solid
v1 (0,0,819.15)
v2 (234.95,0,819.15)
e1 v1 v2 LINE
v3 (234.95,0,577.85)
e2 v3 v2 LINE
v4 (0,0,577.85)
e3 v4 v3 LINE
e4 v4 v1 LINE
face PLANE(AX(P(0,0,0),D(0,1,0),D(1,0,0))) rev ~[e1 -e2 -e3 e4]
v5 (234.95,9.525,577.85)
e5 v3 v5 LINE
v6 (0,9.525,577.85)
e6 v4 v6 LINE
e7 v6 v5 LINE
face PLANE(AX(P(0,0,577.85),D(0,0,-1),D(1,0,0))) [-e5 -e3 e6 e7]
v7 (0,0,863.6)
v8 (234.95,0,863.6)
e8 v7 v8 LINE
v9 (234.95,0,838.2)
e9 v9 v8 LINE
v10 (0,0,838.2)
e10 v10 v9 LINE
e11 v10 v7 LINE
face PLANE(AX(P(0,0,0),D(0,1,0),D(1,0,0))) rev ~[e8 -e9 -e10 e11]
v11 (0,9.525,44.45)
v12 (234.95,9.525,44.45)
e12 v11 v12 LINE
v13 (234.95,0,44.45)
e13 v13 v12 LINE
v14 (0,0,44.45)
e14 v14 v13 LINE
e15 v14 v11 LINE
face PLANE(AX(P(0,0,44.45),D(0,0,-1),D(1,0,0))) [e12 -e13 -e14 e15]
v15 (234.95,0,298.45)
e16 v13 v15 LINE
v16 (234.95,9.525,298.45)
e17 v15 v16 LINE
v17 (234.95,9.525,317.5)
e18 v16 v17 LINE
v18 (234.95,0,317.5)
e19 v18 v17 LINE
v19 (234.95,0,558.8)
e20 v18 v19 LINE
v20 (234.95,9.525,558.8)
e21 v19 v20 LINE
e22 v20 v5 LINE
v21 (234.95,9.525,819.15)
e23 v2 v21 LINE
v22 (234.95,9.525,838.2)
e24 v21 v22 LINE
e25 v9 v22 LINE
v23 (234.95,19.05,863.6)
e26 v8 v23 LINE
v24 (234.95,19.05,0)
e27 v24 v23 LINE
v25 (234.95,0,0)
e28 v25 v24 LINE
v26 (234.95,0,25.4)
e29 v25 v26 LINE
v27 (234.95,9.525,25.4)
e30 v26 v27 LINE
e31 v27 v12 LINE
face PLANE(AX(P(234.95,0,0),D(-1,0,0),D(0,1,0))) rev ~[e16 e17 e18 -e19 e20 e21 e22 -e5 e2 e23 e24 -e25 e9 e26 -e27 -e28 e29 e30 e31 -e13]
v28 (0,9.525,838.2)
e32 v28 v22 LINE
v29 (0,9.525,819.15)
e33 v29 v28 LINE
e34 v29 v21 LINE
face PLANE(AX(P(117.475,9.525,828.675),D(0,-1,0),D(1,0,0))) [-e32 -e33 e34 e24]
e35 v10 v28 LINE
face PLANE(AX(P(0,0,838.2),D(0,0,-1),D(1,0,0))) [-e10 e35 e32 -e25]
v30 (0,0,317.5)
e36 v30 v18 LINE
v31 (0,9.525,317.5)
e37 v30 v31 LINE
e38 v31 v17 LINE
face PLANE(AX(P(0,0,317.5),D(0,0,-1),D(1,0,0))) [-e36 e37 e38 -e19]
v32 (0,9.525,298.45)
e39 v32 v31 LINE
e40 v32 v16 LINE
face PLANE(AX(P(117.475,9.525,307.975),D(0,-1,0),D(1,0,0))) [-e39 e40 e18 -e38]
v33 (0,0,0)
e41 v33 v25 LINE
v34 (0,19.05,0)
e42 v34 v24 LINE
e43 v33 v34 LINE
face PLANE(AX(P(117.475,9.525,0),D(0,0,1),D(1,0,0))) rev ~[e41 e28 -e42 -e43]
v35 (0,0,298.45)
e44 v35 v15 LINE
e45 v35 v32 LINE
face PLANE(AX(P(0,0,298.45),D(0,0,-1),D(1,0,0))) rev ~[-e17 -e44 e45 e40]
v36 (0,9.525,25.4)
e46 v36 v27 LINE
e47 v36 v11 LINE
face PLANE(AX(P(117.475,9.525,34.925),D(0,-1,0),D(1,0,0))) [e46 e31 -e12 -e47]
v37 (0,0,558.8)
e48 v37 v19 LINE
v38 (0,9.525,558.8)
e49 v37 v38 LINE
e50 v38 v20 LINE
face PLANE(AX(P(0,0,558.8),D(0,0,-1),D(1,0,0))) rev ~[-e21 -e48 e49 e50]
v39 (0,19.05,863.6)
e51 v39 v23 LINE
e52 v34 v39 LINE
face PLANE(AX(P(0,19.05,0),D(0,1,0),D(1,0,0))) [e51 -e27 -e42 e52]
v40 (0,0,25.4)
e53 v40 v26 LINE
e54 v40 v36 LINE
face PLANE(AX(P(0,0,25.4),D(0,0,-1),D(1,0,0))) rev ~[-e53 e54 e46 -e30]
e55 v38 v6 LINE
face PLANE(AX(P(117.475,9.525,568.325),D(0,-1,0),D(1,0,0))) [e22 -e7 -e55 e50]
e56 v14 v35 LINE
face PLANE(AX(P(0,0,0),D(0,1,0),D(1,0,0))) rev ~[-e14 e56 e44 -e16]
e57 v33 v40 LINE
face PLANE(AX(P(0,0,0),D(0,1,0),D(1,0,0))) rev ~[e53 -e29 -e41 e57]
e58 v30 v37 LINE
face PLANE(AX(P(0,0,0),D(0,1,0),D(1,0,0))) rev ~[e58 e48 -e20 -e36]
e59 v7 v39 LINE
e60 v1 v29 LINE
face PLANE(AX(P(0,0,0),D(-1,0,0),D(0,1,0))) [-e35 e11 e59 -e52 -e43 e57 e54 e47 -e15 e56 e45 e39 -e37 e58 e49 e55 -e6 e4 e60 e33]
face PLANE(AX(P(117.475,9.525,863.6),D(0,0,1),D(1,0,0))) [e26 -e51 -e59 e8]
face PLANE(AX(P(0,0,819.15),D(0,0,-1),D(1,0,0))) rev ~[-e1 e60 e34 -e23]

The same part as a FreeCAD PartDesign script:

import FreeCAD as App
import Part
import Sketcher
from FreeCAD import Vector
Q = App.Units.Quantity

doc = App.newDocument("Part")
body = doc.addObject("PartDesign::Body", "Body")

# Sketch on XY plane
sketch1 = body.newObject("Sketcher::SketchObject", "Sketch")
sketch1.AttachmentSupport = (doc.getObject("XY_Plane"), [""])
sketch1.MapMode = "FlatFace"
sketch1.addGeometry([
    Part.LineSegment(Vector(0, 19, 0), Vector(0, 0, 0)),
    Part.LineSegment(Vector(0, 0, 0), Vector(235, 0, 0)),
    Part.LineSegment(Vector(235, 0, 0), Vector(235, 19, 0)),
    Part.LineSegment(Vector(235, 19, 0), Vector(0, 19, 0)),
], False)
sketch1.addConstraint([
    Sketcher.Constraint("Coincident", 0, 2, 1, 1),
    Sketcher.Constraint("Coincident", 1, 2, 2, 1),
    Sketcher.Constraint("Coincident", 2, 2, 3, 1),
    Sketcher.Constraint("Coincident", 3, 2, 0, 1),
    Sketcher.Constraint("Vertical", 0),
    Sketcher.Constraint("Horizontal", 1),
    Sketcher.Constraint("Vertical", 2),
    Sketcher.Constraint("Horizontal", 3),
    Sketcher.Constraint("Coincident", 0, 2, -1, 1),
    Sketcher.Constraint("DistanceX", 1, 1, 1, 2, Q("9.25 in")),
    Sketcher.Constraint("DistanceY", 0, 2, 0, 1, Q("0.75 in")),
])
pad1 = body.newObject("PartDesign::Pad", "Pad")
pad1.Profile = sketch1
pad1.Length = Q("34 in")

# Sketch on XZ plane
sketch2 = body.newObject("Sketcher::SketchObject", "Sketch001")
sketch2.AttachmentSupport = (doc.getObject("XZ_Plane"), [""])
sketch2.MapMode = "FlatFace"
sketch2.addGeometry([
    Part.LineSegment(Vector(0, 838, 0), Vector(0, 819, 0)),  # 0
    Part.LineSegment(Vector(0, 819, 0), Vector(235, 819, 0)),  # 1
    Part.LineSegment(Vector(235, 819, 0), Vector(235, 838, 0)),  # 2
    Part.LineSegment(Vector(235, 838, 0), Vector(0, 838, 0)),  # 3
    Part.LineSegment(Vector(0, 44, 0), Vector(0, 25, 0)),  # 4
    Part.LineSegment(Vector(0, 25, 0), Vector(235, 25, 0)),  # 5
    Part.LineSegment(Vector(235, 25, 0), Vector(235, 44, 0)),  # 6
    Part.LineSegment(Vector(235, 44, 0), Vector(0, 44, 0)),  # 7
    Part.LineSegment(Vector(0, 318, 0), Vector(0, 298, 0)),  # 8
    Part.LineSegment(Vector(0, 298, 0), Vector(235, 298, 0)),  # 9
    Part.LineSegment(Vector(235, 298, 0), Vector(235, 318, 0)),  # 10
    Part.LineSegment(Vector(235, 318, 0), Vector(0, 318, 0)),  # 11
    Part.LineSegment(Vector(0, 578, 0), Vector(0, 559, 0)),  # 12
    Part.LineSegment(Vector(0, 559, 0), Vector(235, 559, 0)),  # 13
    Part.LineSegment(Vector(235, 559, 0), Vector(235, 578, 0)),  # 14
    Part.LineSegment(Vector(235, 578, 0), Vector(0, 578, 0)),  # 15
], False)
sketch2.addConstraint([
    Sketcher.Constraint("Coincident", 0, 2, 1, 1),
    Sketcher.Constraint("Coincident", 1, 2, 2, 1),
    Sketcher.Constraint("Coincident", 2, 2, 3, 1),
    Sketcher.Constraint("Coincident", 3, 2, 0, 1),
    Sketcher.Constraint("Coincident", 4, 2, 5, 1),
    Sketcher.Constraint("Coincident", 5, 2, 6, 1),
    Sketcher.Constraint("Coincident", 6, 2, 7, 1),
    Sketcher.Constraint("Coincident", 7, 2, 4, 1),
    Sketcher.Constraint("Coincident", 8, 2, 9, 1),
    Sketcher.Constraint("Coincident", 9, 2, 10, 1),
    Sketcher.Constraint("Coincident", 10, 2, 11, 1),
    Sketcher.Constraint("Coincident", 11, 2, 8, 1),
    Sketcher.Constraint("Coincident", 12, 2, 13, 1),
    Sketcher.Constraint("Coincident", 13, 2, 14, 1),
    Sketcher.Constraint("Coincident", 14, 2, 15, 1),
    Sketcher.Constraint("Coincident", 15, 2, 12, 1),
    Sketcher.Constraint("Vertical", 0),
    Sketcher.Constraint("Horizontal", 1),
    Sketcher.Constraint("Vertical", 2),
    Sketcher.Constraint("Horizontal", 3),
    Sketcher.Constraint("Vertical", 4),
    Sketcher.Constraint("Horizontal", 5),
    Sketcher.Constraint("Vertical", 6),
    Sketcher.Constraint("Horizontal", 7),
    Sketcher.Constraint("Vertical", 8),
    Sketcher.Constraint("Horizontal", 9),
    Sketcher.Constraint("Vertical", 10),
    Sketcher.Constraint("Horizontal", 11),
    Sketcher.Constraint("Vertical", 12),
    Sketcher.Constraint("Horizontal", 13),
    Sketcher.Constraint("Vertical", 14),
    Sketcher.Constraint("Horizontal", 15),
    Sketcher.Constraint("PointOnObject", 0, 2, -2),
    Sketcher.Constraint("PointOnObject", 4, 2, -2),
    Sketcher.Constraint("PointOnObject", 8, 2, -2),
    Sketcher.Constraint("PointOnObject", 12, 2, -2),
    Sketcher.Constraint("Vertical", 2, 2, 5, 2),
    Sketcher.Constraint("Vertical", 6, 2, 9, 2),
    Sketcher.Constraint("Vertical", 10, 2, 13, 2),
    Sketcher.Constraint("Equal", 2, 4),
    Sketcher.Constraint("Equal", 6, 8),
    Sketcher.Constraint("Equal", 10, 12),
    Sketcher.Constraint("DistanceY", -1, 1, 2, 2, Q("33 in")),
    Sketcher.Constraint("DistanceY", -1, 1, 4, 2, Q("1 in")),
    Sketcher.Constraint("DistanceY", -1, 1, 12, 2, Q("22 in")),
    Sketcher.Constraint("DistanceY", 7, 2, 8, 2, Q("10 in")),
    Sketcher.Constraint("DistanceX", 1, 1, 1, 2, Q("9.25 in")),
    Sketcher.Constraint("DistanceY", 0, 2, 0, 1, Q("0.75 in")),
])
pocket1 = body.newObject("PartDesign::Pocket", "Pocket")
pocket1.Profile = sketch2
pocket1.Length = Q("0.375 in")

doc.recompute()
